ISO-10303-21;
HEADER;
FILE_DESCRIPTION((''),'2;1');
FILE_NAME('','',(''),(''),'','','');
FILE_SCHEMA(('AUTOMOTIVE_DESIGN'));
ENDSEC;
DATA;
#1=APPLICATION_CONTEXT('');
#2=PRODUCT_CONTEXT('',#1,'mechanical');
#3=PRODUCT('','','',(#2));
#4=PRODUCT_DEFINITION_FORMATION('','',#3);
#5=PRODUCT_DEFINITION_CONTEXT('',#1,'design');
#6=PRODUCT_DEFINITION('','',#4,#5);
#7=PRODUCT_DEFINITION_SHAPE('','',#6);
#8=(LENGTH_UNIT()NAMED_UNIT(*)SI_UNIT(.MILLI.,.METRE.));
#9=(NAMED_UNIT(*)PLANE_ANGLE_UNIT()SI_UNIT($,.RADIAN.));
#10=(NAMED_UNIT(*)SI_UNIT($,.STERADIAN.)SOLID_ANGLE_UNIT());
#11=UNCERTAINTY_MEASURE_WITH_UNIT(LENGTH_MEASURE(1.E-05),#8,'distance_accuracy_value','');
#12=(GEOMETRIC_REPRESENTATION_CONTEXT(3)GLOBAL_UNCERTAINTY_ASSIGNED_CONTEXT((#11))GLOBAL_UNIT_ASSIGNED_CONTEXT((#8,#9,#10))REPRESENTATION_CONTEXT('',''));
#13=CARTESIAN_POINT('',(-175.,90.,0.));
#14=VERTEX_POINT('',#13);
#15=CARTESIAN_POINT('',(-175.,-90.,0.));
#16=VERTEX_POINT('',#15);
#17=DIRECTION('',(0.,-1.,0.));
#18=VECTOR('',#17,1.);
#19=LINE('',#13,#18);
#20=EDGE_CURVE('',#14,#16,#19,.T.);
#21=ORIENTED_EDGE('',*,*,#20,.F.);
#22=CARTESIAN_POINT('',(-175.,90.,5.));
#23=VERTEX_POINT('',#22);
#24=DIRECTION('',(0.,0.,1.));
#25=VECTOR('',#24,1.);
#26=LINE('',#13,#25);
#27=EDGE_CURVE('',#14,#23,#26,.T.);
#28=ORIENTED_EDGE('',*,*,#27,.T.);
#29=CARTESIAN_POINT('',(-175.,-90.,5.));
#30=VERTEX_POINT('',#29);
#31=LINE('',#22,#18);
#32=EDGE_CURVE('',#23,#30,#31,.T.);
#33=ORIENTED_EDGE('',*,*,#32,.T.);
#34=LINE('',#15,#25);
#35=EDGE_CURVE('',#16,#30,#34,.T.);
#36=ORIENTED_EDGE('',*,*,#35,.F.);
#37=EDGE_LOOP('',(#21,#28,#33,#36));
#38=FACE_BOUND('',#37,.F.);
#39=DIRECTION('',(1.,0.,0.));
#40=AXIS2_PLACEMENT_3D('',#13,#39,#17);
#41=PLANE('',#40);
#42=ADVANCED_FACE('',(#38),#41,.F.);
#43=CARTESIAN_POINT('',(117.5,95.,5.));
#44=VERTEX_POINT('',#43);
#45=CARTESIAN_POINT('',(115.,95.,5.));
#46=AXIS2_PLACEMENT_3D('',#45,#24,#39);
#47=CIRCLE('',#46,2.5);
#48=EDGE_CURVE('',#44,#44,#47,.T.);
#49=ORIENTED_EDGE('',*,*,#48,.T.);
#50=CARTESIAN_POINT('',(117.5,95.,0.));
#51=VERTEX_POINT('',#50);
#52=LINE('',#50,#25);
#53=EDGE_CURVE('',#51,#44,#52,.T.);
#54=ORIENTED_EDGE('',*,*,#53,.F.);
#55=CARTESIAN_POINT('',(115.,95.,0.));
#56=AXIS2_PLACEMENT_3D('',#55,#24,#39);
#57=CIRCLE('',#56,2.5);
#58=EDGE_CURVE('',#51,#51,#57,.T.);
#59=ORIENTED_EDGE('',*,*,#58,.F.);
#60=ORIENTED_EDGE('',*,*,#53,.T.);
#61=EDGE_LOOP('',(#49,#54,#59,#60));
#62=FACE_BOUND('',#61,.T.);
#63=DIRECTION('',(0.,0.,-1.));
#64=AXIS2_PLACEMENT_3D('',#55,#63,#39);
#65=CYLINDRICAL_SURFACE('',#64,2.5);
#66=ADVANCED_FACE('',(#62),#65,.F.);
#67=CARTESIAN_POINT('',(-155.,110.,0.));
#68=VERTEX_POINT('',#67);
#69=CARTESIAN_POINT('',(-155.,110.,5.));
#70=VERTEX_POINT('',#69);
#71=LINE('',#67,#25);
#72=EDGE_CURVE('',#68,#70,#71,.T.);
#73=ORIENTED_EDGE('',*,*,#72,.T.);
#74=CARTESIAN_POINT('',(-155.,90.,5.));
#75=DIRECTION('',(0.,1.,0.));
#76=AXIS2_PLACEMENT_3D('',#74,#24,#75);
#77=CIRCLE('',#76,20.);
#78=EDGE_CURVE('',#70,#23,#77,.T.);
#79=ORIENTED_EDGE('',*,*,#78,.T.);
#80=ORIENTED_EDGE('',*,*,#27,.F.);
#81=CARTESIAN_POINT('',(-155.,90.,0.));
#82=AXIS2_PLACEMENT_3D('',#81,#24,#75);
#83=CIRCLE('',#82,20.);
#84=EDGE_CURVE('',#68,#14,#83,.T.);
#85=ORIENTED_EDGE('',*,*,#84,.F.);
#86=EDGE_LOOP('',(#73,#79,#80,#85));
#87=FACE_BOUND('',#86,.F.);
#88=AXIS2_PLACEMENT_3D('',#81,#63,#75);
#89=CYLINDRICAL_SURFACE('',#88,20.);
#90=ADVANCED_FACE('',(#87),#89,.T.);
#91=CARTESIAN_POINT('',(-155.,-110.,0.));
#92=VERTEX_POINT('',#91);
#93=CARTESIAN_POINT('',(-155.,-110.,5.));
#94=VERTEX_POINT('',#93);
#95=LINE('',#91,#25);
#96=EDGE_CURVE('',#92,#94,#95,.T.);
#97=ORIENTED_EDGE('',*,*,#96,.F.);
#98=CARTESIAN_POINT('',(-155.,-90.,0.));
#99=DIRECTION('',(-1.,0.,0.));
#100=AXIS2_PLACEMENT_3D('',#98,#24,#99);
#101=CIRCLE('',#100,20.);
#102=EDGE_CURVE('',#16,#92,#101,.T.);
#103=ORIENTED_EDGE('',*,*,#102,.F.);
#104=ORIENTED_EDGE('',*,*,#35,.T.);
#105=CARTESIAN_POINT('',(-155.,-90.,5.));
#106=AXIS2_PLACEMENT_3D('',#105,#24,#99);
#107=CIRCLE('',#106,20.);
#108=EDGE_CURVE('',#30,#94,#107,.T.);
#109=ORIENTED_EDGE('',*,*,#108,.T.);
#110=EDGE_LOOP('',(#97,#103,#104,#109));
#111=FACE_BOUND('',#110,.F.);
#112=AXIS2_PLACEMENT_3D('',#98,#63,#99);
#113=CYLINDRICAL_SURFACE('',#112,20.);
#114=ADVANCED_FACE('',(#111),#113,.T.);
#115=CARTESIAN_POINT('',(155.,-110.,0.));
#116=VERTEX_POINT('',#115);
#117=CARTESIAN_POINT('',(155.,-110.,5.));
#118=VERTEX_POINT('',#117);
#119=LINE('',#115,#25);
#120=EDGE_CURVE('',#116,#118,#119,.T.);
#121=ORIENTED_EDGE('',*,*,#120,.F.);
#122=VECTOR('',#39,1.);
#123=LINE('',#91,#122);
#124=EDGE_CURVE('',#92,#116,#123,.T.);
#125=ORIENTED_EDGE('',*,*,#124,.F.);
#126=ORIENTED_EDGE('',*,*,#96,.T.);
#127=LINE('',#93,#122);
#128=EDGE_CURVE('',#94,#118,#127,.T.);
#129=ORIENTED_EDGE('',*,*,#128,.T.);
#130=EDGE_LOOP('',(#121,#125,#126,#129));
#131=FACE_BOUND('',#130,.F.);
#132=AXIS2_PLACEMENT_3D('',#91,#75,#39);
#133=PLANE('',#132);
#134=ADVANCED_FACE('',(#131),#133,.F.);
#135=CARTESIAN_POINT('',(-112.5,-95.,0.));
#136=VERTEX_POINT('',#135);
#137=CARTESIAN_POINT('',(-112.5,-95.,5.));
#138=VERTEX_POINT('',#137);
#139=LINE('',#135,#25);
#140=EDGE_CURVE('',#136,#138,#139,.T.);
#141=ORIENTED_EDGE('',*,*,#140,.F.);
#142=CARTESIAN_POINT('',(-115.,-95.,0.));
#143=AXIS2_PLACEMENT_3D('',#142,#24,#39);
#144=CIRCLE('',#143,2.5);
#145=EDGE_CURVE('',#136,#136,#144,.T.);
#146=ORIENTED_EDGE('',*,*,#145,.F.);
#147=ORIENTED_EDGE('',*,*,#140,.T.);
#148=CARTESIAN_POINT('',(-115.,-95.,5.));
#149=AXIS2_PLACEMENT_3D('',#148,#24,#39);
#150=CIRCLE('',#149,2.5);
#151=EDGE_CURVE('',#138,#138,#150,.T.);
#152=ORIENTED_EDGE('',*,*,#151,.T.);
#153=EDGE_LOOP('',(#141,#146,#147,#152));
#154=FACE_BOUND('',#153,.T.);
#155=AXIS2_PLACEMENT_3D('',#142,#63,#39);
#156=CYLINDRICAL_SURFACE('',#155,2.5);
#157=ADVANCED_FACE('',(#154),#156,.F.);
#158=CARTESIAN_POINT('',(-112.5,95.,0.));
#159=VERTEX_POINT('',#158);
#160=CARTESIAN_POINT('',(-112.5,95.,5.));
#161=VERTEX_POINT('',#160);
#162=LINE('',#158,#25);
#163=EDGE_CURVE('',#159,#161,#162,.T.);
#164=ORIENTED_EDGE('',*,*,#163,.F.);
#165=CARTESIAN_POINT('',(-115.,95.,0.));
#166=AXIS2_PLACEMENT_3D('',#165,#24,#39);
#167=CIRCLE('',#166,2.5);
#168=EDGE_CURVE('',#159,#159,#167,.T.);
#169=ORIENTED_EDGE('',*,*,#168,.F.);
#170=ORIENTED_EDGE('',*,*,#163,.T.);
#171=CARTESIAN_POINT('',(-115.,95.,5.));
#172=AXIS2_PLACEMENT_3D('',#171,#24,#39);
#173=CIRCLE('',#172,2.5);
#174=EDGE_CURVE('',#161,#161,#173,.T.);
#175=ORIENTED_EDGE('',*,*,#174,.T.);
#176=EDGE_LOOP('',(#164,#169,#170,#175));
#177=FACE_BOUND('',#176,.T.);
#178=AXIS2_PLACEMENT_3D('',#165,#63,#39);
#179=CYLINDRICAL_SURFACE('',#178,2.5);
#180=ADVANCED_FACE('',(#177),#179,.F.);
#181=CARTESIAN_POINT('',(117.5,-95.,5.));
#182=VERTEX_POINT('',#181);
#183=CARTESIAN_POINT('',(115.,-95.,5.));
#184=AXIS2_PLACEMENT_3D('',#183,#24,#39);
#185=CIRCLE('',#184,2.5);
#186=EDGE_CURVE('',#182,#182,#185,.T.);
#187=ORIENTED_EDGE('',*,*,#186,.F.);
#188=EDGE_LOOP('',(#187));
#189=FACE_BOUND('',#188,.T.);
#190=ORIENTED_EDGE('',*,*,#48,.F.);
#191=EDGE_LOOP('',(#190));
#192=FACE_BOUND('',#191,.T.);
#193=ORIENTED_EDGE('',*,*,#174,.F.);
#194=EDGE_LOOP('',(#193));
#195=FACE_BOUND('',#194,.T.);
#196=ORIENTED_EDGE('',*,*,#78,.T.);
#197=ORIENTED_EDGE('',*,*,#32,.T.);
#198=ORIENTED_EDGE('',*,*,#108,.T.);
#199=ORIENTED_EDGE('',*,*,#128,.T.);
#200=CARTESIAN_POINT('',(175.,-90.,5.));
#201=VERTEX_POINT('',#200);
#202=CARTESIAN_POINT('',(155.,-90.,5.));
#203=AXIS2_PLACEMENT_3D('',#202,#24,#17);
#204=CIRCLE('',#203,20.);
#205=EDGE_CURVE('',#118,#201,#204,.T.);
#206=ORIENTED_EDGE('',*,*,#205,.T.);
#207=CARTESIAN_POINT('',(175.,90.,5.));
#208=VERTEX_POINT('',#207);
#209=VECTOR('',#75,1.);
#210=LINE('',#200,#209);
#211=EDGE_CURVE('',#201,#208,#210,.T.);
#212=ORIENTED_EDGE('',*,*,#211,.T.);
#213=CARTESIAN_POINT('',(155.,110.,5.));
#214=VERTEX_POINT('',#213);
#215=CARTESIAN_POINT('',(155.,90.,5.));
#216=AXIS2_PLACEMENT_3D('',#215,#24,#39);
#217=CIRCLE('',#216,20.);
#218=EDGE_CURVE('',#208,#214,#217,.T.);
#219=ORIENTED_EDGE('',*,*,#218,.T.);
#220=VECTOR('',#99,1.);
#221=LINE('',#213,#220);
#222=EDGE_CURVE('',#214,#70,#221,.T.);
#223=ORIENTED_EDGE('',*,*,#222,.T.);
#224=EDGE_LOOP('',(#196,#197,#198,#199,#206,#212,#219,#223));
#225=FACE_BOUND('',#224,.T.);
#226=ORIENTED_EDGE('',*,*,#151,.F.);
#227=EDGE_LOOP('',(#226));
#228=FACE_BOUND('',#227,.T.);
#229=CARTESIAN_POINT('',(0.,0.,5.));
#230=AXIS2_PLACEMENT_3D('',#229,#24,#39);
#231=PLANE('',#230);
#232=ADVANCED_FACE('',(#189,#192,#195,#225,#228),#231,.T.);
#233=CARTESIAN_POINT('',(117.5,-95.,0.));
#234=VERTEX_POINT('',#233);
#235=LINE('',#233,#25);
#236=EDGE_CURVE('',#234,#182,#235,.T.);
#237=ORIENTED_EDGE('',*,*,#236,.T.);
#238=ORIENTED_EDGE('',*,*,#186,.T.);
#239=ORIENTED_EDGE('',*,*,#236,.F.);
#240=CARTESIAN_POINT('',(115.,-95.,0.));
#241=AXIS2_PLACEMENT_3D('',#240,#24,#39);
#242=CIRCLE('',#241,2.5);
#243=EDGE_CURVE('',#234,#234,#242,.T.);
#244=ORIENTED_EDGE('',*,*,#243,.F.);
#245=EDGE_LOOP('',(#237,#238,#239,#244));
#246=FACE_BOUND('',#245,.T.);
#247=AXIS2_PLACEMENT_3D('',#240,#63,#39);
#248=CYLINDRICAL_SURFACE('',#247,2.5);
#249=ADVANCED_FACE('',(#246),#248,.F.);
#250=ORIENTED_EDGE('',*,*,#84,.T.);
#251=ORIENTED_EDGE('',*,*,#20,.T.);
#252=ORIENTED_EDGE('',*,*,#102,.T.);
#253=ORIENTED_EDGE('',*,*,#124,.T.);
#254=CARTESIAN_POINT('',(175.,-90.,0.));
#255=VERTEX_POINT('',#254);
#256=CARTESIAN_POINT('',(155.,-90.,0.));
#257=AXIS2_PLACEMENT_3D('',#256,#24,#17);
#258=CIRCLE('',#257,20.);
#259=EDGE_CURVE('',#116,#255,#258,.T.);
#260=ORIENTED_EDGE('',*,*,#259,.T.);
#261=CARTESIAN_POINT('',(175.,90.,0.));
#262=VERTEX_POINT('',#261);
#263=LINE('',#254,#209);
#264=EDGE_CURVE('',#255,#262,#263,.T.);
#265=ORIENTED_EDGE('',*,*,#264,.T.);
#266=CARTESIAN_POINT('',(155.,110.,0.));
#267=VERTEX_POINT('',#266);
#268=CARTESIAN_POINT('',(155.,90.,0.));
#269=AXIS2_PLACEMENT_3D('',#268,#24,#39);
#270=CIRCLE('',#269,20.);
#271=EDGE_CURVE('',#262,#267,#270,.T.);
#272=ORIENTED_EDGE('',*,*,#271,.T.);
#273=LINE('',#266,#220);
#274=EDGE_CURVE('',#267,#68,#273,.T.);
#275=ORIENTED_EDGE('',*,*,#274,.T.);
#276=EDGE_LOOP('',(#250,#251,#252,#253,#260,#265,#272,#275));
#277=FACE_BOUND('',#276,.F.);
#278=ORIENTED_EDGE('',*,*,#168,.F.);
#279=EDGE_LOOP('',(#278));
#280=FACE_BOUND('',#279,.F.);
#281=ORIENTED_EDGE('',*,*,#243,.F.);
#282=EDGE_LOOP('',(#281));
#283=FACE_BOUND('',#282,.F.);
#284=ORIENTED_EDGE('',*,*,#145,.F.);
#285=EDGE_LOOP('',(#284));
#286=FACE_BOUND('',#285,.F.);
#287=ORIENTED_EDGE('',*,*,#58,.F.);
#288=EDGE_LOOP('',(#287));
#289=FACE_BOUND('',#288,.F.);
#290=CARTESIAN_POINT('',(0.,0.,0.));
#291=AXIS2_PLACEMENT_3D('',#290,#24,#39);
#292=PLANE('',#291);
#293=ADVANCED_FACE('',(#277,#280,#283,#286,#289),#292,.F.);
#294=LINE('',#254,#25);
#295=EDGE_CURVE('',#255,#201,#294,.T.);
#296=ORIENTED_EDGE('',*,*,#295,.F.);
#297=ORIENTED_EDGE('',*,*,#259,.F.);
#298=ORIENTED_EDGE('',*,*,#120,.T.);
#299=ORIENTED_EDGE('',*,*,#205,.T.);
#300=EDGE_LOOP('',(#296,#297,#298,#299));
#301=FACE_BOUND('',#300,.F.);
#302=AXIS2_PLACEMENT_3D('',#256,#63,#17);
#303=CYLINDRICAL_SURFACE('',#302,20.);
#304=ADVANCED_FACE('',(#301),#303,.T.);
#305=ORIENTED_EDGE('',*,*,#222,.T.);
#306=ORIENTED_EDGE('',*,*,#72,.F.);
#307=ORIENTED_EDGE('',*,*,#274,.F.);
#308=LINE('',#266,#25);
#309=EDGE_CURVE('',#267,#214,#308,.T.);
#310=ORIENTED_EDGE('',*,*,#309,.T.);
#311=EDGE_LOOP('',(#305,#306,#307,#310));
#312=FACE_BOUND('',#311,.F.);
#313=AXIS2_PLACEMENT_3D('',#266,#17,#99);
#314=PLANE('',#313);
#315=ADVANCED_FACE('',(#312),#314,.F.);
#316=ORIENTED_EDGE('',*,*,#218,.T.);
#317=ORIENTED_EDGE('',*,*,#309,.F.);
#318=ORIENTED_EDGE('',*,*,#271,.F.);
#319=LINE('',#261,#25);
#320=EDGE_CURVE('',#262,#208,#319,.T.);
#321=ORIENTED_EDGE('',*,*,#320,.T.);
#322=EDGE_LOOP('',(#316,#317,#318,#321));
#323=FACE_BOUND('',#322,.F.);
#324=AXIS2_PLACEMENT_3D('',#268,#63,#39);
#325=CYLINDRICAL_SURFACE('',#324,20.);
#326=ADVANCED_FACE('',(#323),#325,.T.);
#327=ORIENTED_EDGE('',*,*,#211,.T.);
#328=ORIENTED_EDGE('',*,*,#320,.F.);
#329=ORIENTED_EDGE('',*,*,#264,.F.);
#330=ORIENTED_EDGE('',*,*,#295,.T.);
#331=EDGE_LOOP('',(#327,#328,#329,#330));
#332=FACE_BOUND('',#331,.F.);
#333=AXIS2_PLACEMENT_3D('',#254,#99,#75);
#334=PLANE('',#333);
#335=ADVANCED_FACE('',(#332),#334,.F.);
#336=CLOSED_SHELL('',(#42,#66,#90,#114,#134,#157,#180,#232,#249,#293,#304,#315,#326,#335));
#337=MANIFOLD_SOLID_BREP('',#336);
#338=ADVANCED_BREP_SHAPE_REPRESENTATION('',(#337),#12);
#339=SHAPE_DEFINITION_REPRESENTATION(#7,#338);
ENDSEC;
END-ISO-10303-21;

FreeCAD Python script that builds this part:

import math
import FreeCAD as App
import Part
import Sketcher
from FreeCAD import Vector

doc = App.newDocument("Part")
params = doc.addObject("Spreadsheet::Sheet", "Params")
for row, (alias, value) in enumerate([
    ("sketch1_diameter", "5 mm"),
    ("sketch1_radius", "20 mm"),
    ("sketch1_width", "310 mm"),
    ("pad1_length", "5 mm"),
], start=1):
    params.set(f"A{row}", alias)
    params.set(f"B{row}", "=" + value)
    params.setAlias(f"B{row}", alias)

body = doc.addObject("PartDesign::Body", "Body")

# Sketch on XY plane
sketch1 = doc.addObject("Sketcher::SketchObject", "Sketch")
body.addObject(sketch1)
sketch1.AttachmentSupport = (doc.XY_Plane, [""])
sketch1.MapMode = "FlatFace"
sketch1.addGeometry(Part.ArcOfCircle(Part.Circle(Vector(-155, -90, 0), Vector(0, 0, 1), 20), math.radians(180), math.radians(270)), False)
sketch1.addGeometry(Part.LineSegment(Vector(-155, -110, 0), Vector(155, -110, 0)), False)
sketch1.addGeometry(Part.ArcOfCircle(Part.Circle(Vector(155, -90, 0), Vector(0, 0, 1), 20), math.radians(-90), math.radians(0)), False)
sketch1.addGeometry(Part.LineSegment(Vector(175, -90, 0), Vector(175, 90, 0)), False)
sketch1.addGeometry(Part.ArcOfCircle(Part.Circle(Vector(155, 90, 0), Vector(0, 0, 1), 20), math.radians(0), math.radians(90)), False)
sketch1.addGeometry(Part.LineSegment(Vector(155, 110, 0), Vector(-155, 110, 0)), False)
sketch1.addGeometry(Part.ArcOfCircle(Part.Circle(Vector(-155, 90, 0), Vector(0, 0, 1), 20), math.radians(90), math.radians(180)), False)
sketch1.addGeometry(Part.LineSegment(Vector(-175, 90, 0), Vector(-175, -90, 0)), False)
sketch1.addGeometry(Part.Circle(Vector(-115, -95, 0), Vector(0, 0, 1), 2.5), False)
sketch1.addGeometry(Part.Circle(Vector(115, -95, 0), Vector(0, 0, 1), 2.5), False)
sketch1.addGeometry(Part.Circle(Vector(-115, 95, 0), Vector(0, 0, 1), 2.5), False)
sketch1.addGeometry(Part.Circle(Vector(115, 95, 0), Vector(0, 0, 1), 2.5), False)
sketch1.addConstraint(Sketcher.Constraint("Tangent", 0, 2, 1, 1))
sketch1.addConstraint(Sketcher.Constraint("Tangent", 1, 2, 2, 1))
sketch1.addConstraint(Sketcher.Constraint("Tangent", 2, 2, 3, 1))
sketch1.addConstraint(Sketcher.Constraint("Tangent", 3, 2, 4, 1))
sketch1.addConstraint(Sketcher.Constraint("Tangent", 4, 2, 5, 1))
sketch1.addConstraint(Sketcher.Constraint("Tangent", 5, 2, 6, 1))
sketch1.addConstraint(Sketcher.Constraint("Tangent", 6, 2, 7, 1))
sketch1.addConstraint(Sketcher.Constraint("Tangent", 7, 2, 0, 1))
sketch1.addConstraint(Sketcher.Constraint("Horizontal", 1))
sketch1.addConstraint(Sketcher.Constraint("Vertical", 3))
sketch1.addConstraint(Sketcher.Constraint("Horizontal", 5))
sketch1.addConstraint(Sketcher.Constraint("Vertical", 7))
sketch1.addConstraint(Sketcher.Constraint("Equal", 0, 2))
sketch1.addConstraint(Sketcher.Constraint("Equal", 2, 4))
sketch1.addConstraint(Sketcher.Constraint("Equal", 4, 6))
sketch1.addConstraint(Sketcher.Constraint("Equal", 8, 9))
sketch1.addConstraint(Sketcher.Constraint("Equal", 9, 10))
sketch1.addConstraint(Sketcher.Constraint("Equal", 10, 11))
sketch1.addConstraint(Sketcher.Constraint("Symmetric", 0, 3, 4, 3, -1, 1))
sketch1.addConstraint(Sketcher.Constraint("Symmetric", 9, 3, 10, 3, -1, 1))
sketch1.addConstraint(Sketcher.Constraint("Symmetric", 8, 3, 11, 3, -1, 1))
sketch1.addConstraint(Sketcher.Constraint("Symmetric", 8, 3, 9, 3, -2))
sketch1.addConstraint(Sketcher.Constraint("Diameter", 8, 5.0))
sketch1.addConstraint(Sketcher.Constraint("Radius", 0, 20.0))
sketch1.addConstraint(Sketcher.Constraint("DistanceY", 8, 3, 0, 3, 5.0))
sketch1.addConstraint(Sketcher.Constraint("DistanceX", 9, 3, 2, 2, 60.0))
sketch1.addConstraint(Sketcher.Constraint("DistanceY", 0, 2, 5, 2, 220.0))
sketch1.addConstraint(Sketcher.Constraint("DistanceX", 1, 1, 1, 2, 310.0))
sketch1.setExpression("Constraints[22]", "Params.sketch1_diameter")
sketch1.setExpression("Constraints[23]", "Params.sketch1_radius")
sketch1.setExpression("Constraints[27]", "Params.sketch1_width")
pad1 = doc.addObject("PartDesign::Pad", "Pad")
body.addObject(pad1)
pad1.Profile = sketch1
pad1.setExpression("Length", "Params.pad1_length")

doc.recompute()
